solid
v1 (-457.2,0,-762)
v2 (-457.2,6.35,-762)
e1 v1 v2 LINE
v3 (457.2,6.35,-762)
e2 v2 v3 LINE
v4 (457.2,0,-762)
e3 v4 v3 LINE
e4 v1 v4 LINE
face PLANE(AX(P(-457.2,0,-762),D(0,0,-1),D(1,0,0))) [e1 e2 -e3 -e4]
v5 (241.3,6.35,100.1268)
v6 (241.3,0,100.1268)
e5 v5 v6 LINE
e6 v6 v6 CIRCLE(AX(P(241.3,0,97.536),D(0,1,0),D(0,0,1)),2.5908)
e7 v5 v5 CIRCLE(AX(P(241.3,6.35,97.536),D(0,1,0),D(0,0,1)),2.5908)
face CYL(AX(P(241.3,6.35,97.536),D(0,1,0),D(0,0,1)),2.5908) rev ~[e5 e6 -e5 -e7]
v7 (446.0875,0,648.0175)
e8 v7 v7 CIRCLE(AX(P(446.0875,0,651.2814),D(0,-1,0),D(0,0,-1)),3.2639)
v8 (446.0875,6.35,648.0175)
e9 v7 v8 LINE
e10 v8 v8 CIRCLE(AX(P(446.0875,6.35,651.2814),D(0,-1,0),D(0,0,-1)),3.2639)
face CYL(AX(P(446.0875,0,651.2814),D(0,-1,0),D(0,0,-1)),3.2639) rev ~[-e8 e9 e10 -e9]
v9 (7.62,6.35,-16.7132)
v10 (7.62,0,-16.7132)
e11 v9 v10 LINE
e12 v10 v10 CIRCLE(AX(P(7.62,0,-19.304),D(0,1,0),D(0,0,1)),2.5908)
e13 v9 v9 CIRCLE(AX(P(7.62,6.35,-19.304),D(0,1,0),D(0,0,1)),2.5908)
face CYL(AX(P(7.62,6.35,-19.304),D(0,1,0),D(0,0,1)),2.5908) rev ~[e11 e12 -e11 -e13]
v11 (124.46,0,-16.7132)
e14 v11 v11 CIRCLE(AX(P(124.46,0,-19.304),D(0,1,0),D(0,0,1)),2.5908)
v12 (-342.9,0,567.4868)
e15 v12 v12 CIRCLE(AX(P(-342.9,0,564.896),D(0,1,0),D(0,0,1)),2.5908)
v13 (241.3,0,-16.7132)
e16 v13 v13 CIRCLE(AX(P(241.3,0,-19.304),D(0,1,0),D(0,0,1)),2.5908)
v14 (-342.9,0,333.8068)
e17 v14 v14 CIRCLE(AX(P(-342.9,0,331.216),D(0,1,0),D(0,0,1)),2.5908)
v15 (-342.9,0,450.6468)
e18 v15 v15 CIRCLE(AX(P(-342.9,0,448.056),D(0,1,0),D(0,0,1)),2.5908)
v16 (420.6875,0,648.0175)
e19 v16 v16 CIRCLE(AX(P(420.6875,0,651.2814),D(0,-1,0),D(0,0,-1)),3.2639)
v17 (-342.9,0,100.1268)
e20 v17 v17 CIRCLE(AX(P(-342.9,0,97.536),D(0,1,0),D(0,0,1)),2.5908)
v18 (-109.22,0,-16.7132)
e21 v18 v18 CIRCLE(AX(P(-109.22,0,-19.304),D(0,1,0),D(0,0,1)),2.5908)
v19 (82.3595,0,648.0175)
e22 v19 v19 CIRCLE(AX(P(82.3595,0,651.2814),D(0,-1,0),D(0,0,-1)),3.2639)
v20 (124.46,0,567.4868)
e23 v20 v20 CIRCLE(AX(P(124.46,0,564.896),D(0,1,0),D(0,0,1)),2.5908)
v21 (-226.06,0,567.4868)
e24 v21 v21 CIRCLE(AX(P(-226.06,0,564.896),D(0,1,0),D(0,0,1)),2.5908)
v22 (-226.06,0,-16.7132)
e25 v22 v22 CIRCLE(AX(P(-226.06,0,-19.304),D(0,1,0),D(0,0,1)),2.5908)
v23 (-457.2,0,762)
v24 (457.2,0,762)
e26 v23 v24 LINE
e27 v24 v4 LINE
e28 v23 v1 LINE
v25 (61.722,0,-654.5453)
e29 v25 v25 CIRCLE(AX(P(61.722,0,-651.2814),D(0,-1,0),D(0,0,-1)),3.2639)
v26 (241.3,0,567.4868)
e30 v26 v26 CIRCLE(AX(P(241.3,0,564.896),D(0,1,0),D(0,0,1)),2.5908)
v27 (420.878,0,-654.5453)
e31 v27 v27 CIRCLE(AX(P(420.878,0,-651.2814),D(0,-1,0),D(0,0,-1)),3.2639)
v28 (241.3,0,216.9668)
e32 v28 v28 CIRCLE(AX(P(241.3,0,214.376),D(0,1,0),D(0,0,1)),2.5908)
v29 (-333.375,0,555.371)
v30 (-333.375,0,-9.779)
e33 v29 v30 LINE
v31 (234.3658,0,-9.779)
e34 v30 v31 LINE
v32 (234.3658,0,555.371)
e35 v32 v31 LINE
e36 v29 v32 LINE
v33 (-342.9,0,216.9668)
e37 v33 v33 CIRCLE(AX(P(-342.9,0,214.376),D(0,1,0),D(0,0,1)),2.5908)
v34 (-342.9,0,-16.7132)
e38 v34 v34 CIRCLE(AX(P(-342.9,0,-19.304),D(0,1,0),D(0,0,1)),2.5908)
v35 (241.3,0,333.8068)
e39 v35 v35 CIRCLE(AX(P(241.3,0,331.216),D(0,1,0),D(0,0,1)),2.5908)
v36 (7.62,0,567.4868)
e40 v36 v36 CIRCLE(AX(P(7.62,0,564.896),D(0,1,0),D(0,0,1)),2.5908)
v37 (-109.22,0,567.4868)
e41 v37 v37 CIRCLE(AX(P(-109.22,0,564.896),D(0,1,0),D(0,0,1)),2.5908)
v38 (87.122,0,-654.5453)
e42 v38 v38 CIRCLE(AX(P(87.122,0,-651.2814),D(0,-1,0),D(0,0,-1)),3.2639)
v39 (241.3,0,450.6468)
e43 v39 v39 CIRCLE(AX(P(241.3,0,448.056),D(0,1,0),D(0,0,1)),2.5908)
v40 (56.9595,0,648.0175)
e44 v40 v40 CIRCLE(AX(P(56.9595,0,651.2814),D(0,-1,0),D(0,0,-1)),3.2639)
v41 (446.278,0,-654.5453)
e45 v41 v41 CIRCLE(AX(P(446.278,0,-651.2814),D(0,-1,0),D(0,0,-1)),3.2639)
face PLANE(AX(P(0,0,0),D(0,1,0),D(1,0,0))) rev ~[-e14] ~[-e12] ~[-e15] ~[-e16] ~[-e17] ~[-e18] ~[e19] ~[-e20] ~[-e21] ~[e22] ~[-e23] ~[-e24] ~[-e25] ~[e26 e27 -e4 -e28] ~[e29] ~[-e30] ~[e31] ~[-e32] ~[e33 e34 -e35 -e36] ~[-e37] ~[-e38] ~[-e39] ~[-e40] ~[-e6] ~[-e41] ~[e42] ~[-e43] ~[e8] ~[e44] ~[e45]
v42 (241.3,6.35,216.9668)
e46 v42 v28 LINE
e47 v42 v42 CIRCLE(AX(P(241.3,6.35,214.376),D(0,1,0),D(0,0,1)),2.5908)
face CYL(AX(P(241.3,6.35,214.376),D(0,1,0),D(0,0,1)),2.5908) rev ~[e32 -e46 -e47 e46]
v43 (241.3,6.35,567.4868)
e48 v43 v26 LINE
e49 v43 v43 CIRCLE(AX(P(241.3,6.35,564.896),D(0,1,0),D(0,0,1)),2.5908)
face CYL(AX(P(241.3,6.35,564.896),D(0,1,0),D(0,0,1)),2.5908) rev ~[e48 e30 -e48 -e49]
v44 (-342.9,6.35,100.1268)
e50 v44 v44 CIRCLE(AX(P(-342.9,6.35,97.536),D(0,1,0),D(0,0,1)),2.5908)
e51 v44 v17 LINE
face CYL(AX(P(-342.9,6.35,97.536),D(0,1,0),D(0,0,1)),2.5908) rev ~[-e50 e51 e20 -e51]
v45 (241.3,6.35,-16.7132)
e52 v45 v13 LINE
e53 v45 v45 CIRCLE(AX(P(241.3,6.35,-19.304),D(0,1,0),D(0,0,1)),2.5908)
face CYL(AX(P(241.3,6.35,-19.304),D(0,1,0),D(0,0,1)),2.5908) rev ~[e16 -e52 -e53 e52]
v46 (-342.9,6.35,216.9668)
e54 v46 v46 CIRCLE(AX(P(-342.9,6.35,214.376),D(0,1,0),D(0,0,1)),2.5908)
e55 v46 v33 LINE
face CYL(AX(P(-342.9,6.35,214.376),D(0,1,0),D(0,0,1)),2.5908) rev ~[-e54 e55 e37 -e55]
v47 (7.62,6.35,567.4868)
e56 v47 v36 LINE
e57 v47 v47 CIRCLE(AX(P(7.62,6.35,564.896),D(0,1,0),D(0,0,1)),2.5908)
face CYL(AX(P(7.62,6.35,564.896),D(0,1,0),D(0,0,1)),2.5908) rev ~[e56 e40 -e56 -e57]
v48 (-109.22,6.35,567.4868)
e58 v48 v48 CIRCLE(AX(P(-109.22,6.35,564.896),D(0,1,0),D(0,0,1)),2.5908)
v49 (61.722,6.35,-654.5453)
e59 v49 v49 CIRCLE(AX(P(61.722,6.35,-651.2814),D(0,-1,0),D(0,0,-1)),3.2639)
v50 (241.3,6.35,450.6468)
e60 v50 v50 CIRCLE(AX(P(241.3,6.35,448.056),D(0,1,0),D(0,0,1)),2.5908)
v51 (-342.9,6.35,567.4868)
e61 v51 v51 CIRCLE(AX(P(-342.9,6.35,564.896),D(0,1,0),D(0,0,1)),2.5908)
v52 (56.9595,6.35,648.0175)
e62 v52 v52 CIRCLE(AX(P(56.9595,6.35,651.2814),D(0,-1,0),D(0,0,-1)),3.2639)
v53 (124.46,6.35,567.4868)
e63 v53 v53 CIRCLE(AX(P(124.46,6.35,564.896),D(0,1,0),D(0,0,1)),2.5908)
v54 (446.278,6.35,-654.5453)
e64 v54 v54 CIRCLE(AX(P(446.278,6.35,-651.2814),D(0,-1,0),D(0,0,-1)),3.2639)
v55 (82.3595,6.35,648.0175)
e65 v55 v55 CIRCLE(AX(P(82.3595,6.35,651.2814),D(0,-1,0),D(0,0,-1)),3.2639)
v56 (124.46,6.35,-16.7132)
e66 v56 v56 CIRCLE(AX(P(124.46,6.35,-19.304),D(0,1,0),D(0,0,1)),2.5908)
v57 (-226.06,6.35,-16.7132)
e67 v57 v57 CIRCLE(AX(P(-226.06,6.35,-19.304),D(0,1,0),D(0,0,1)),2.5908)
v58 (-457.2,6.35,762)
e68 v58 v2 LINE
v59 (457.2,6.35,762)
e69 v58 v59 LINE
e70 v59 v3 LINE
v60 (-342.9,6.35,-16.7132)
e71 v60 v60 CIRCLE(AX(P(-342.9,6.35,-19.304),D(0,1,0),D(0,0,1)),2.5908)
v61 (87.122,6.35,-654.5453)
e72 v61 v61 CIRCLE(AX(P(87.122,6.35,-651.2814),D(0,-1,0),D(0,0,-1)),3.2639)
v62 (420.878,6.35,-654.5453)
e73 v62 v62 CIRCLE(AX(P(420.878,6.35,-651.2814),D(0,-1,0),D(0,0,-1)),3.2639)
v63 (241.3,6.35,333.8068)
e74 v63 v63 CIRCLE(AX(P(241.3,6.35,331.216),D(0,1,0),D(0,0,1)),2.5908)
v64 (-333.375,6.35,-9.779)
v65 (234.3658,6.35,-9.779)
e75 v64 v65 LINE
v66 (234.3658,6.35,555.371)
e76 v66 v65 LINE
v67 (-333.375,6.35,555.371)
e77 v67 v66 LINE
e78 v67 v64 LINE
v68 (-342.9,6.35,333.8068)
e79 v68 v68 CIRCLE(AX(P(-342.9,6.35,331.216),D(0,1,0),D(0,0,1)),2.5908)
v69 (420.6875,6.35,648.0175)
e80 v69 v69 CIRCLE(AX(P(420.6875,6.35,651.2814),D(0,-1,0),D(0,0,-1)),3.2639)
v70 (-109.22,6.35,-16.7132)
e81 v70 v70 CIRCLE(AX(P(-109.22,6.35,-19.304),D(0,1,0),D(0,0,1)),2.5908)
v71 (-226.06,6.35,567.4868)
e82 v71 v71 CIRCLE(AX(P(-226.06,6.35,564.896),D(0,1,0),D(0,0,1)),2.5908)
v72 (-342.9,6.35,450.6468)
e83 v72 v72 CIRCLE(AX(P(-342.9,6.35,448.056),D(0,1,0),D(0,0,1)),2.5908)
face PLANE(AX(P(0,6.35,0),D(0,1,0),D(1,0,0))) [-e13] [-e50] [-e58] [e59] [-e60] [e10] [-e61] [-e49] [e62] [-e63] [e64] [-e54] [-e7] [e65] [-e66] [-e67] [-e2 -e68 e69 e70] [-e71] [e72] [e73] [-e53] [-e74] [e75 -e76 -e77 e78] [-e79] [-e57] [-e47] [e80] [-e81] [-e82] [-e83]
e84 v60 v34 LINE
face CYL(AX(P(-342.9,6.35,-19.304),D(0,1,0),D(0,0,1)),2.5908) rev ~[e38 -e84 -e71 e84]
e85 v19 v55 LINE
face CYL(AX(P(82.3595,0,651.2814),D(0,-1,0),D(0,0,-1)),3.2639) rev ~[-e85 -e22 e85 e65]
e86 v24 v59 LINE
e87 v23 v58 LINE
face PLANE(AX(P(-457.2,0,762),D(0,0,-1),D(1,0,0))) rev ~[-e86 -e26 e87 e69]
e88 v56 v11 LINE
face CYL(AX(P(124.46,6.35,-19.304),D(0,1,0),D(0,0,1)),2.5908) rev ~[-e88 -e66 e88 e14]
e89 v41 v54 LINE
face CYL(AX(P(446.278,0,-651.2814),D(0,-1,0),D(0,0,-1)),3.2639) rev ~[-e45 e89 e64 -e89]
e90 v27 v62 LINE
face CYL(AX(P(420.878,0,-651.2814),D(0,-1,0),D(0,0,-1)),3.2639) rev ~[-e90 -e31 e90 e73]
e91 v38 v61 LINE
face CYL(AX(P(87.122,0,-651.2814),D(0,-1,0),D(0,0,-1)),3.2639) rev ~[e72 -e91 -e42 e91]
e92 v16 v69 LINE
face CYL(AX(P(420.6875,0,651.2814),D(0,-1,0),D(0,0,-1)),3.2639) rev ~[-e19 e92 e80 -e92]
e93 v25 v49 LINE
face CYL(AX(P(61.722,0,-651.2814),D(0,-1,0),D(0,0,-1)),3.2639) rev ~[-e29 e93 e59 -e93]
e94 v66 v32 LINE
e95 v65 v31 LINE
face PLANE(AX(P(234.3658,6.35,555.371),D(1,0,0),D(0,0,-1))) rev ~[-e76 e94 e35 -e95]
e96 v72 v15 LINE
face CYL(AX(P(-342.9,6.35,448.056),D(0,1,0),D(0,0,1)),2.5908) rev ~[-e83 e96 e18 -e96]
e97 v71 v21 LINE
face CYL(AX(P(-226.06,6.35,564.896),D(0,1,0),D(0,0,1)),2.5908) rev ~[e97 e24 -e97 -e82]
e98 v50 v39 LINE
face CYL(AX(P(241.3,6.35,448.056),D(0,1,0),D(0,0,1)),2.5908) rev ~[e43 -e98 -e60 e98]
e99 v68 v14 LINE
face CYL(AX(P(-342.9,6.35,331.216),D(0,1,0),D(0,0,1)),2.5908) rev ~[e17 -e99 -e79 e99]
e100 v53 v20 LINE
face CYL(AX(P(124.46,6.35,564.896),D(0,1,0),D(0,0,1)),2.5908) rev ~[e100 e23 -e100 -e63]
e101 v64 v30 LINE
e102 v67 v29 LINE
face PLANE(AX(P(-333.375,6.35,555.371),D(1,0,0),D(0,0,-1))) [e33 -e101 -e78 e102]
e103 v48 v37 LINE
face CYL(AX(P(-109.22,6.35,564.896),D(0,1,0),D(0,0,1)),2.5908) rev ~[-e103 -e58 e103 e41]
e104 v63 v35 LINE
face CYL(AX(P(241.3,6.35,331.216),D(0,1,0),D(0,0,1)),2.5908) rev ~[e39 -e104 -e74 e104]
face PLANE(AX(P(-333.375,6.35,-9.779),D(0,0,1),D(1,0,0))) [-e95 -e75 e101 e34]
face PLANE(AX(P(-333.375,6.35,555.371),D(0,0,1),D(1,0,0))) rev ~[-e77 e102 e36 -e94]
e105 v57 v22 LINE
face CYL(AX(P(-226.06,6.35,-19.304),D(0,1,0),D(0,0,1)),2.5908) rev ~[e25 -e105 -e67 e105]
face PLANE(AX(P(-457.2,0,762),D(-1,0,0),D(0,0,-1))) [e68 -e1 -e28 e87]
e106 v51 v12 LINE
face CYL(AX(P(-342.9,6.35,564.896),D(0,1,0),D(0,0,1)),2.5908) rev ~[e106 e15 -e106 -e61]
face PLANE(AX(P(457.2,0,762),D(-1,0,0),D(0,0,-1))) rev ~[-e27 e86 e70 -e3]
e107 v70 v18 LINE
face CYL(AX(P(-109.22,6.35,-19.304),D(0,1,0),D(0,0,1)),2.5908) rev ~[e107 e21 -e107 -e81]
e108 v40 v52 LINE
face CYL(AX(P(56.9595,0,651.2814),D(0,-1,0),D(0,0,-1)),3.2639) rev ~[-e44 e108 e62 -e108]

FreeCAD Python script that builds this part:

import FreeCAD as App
import Part
import Sketcher
from FreeCAD import Vector
Q = App.Units.Quantity


def add_polygon(sketch, points):
    """Adds a closed chain of lines whose ends are joined by coincident constraints."""
    first, n = sketch.GeometryCount, len(points)
    for a, b in zip(points, points[1:] + points[:1]):
        sketch.addGeometry(Part.LineSegment(App.Vector(*a, 0), App.Vector(*b, 0)), False)
    for i in range(n):
        sketch.addConstraint(Sketcher.Constraint("Coincident", first + i, 2, first + (i + 1) % n, 1))

doc = App.newDocument("Part")
params = doc.addObject("Spreadsheet::Sheet", "Params")
for row, (alias, value) in enumerate([
    ("sketch1_width", "36 in"),
    ("sketch1_height", "60 in"),
    ("pad1_length", "0.25 in"),
    ("sketch2_diameter", "0.257 in"),
    ("sketch3_diameter", "0.204 in"),
    ("sketch3_height", "22.25 in"),
    ("sketch3_width", "22.352 in"),
], start=1):
    params.set(f"A{row}", alias)
    params.set(f"B{row}", "=" + value)
    params.setAlias(f"B{row}", alias)

body = doc.addObject("PartDesign::Body", "Body")

# Sketch on XZ plane
sketch1 = body.newObject("Sketcher::SketchObject", "Sketch")
sketch1.AttachmentSupport = (doc.getObject("XZ_Plane"), [""])
sketch1.MapMode = "FlatFace"
add_polygon(sketch1, [(-457, -762), (-457, 762), (457, 762), (457, -762)])  # lines 0-3
sketch1.addConstraint([
    Sketcher.Constraint("Vertical", 0),
    Sketcher.Constraint("Horizontal", 1),
    Sketcher.Constraint("Vertical", 2),
    Sketcher.Constraint("Horizontal", 3),
    Sketcher.Constraint("Symmetric", 0, 2, 2, 2, -1, 1),
    Sketcher.Constraint("DistanceX", 1, 1, 1, 2, Q("36 in")),
    Sketcher.Constraint("DistanceY", 0, 1, 0, 2, Q("60 in")),
])
sketch1.setExpression("Constraints[9]", "Params.sketch1_width")
sketch1.setExpression("Constraints[10]", "Params.sketch1_height")
pad1 = body.newObject("PartDesign::Pad", "Pad")
pad1.Profile = sketch1
pad1.setExpression("Length", "Params.pad1_length")
pad1.Reversed = True

# Sketch on XZ plane
sketch2 = body.newObject("Sketcher::SketchObject", "Sketch001")
sketch2.AttachmentSupport = (doc.getObject("XZ_Plane"), [""])
sketch2.MapMode = "FlatFace"
sketch2.addGeometry([
    Part.Circle(Vector(57, 651.3, 0), Vector(0, 0, 1), 3.3),  # 0
    Part.Circle(Vector(82.4, 651.3, 0), Vector(0, 0, 1), 3.3),  # 1
    Part.Circle(Vector(446.1, 651.3, 0), Vector(0, 0, 1), 3.3),  # 2
    Part.Circle(Vector(420.7, 651.3, 0), Vector(0, 0, 1), 3.3),  # 3
    Part.Circle(Vector(61.7, -651.3, 0), Vector(0, 0, 1), 3.3),  # 4
    Part.Circle(Vector(87.1, -651.3, 0), Vector(0, 0, 1), 3.3),  # 5
    Part.Circle(Vector(420.9, -651.3, 0), Vector(0, 0, 1), 3.3),  # 6
    Part.Circle(Vector(446.3, -651.3, 0), Vector(0, 0, 1), 3.3),  # 7
], False)
sketch2.addConstraint([
    Sketcher.Constraint("Equal", 0, 1),
    Sketcher.Constraint("Equal", 1, 2),
    Sketcher.Constraint("Equal", 2, 3),
    Sketcher.Constraint("Equal", 3, 4),
    Sketcher.Constraint("Equal", 4, 5),
    Sketcher.Constraint("Equal", 5, 6),
    Sketcher.Constraint("Equal", 6, 7),
    Sketcher.Constraint("Horizontal", 0, 3, 1, 3),
    Sketcher.Constraint("Horizontal", 1, 3, 2, 3),
    Sketcher.Constraint("Horizontal", 2, 3, 3, 3),
    Sketcher.Constraint("Horizontal", 4, 3, 5, 3),
    Sketcher.Constraint("Horizontal", 5, 3, 6, 3),
    Sketcher.Constraint("Horizontal", 6, 3, 7, 3),
    Sketcher.Constraint("Diameter", 0, Q("0.257 in")),
    Sketcher.Constraint("DistanceX", 0, 3, 1, 3, Q("1 in")),
    Sketcher.Constraint("DistanceX", 3, 3, 2, 3, Q("1 in")),
    Sketcher.Constraint("DistanceX", 4, 3, 5, 3, Q("1 in")),
    Sketcher.Constraint("DistanceX", 6, 3, 7, 3, Q("1 in")),
    Sketcher.Constraint("DistanceX", -1, 1, 4, 3, Q("2.43 in")),
    Sketcher.Constraint("DistanceX", -1, 1, 6, 3, Q("16.57 in")),
    Sketcher.Constraint("DistanceX", 1, 3, 2, 3, Q("14.32 in")),
    Sketcher.Constraint("DistanceY", -1, 1, 0, 3, Q("25.641 in")),
    Sketcher.Constraint("DistanceX", -1, 1, 2, 3, Q("17.5625 in")),
    Sketcher.Constraint("DistanceY", 4, 3, -1, 1, Q("25.641 in")),
])
sketch2.setExpression("Constraints[13]", "Params.sketch2_diameter")
pocket1 = body.newObject("PartDesign::Pocket", "Pocket")
pocket1.Profile = sketch2
pocket1.Type = "ThroughAll"

# Sketch on XZ plane
sketch3 = body.newObject("Sketcher::SketchObject", "Sketch002")
sketch3.AttachmentSupport = (doc.getObject("XZ_Plane"), [""])
sketch3.MapMode = "FlatFace"
sketch3.AttachmentOffset = App.Placement(Vector(0, 0, -0.25 * 25.4), App.Rotation())
sketch3.addGeometry(Part.Circle(Vector(241.3, -19.3, 0), Vector(0, 0, 1), 2.6), False)  # 0
sketch3.addGeometry(Part.Circle(Vector(241.3, 97.5, 0), Vector(0, 0, 1), 2.6), False)  # 1
sketch3.addGeometry(Part.Circle(Vector(241.3, 214.4, 0), Vector(0, 0, 1), 2.6), False)  # 2
sketch3.addGeometry(Part.Circle(Vector(241.3, 331.2, 0), Vector(0, 0, 1), 2.6), False)  # 3
sketch3.addGeometry(Part.Circle(Vector(241.3, 448.1, 0), Vector(0, 0, 1), 2.6), False)  # 4
sketch3.addGeometry(Part.Circle(Vector(241.3, 564.9, 0), Vector(0, 0, 1), 2.6), False)  # 5
sketch3.addGeometry(Part.Circle(Vector(-342.9, 564.9, 0), Vector(0, 0, 1), 2.6), False)  # 6
sketch3.addGeometry(Part.Circle(Vector(-226.1, 564.9, 0), Vector(0, 0, 1), 2.6), False)  # 7
sketch3.addGeometry(Part.Circle(Vector(-109.2, 564.9, 0), Vector(0, 0, 1), 2.6), False)  # 8
sketch3.addGeometry(Part.Circle(Vector(7.6, 564.9, 0), Vector(0, 0, 1), 2.6), False)  # 9
sketch3.addGeometry(Part.Circle(Vector(124.5, 564.9, 0), Vector(0, 0, 1), 2.6), False)  # 10
sketch3.addGeometry(Part.Circle(Vector(-342.9, 448.1, 0), Vector(0, 0, 1), 2.6), False)  # 11
sketch3.addGeometry(Part.Circle(Vector(-342.9, 331.2, 0), Vector(0, 0, 1), 2.6), False)  # 12
sketch3.addGeometry(Part.Circle(Vector(-342.9, 214.4, 0), Vector(0, 0, 1), 2.6), False)  # 13
sketch3.addGeometry(Part.Circle(Vector(-342.9, 97.5, 0), Vector(0, 0, 1), 2.6), False)  # 14
sketch3.addGeometry(Part.Circle(Vector(124.5, -19.3, 0), Vector(0, 0, 1), 2.6), False)  # 15
sketch3.addGeometry(Part.Circle(Vector(7.6, -19.3, 0), Vector(0, 0, 1), 2.6), False)  # 16
sketch3.addGeometry(Part.Circle(Vector(-109.2, -19.3, 0), Vector(0, 0, 1), 2.6), False)  # 17
sketch3.addGeometry(Part.Circle(Vector(-226.1, -19.3, 0), Vector(0, 0, 1), 2.6), False)  # 18
sketch3.addGeometry(Part.Circle(Vector(-342.9, -19.3, 0), Vector(0, 0, 1), 2.6), False)  # 19
add_polygon(sketch3, [(-333.4, -9.8), (-333.4, 555.4), (234.4, 555.4), (234.4, -9.8)])  # lines 20-23
sketch3.addConstraint([
    Sketcher.Constraint("Vertical", 20),
    Sketcher.Constraint("Horizontal", 21),
    Sketcher.Constraint("Vertical", 22),
    Sketcher.Constraint("Horizontal", 23),
    Sketcher.Constraint("Equal", 0, 1),
    Sketcher.Constraint("Equal", 1, 2),
    Sketcher.Constraint("Equal", 2, 3),
    Sketcher.Constraint("Equal", 3, 4),
    Sketcher.Constraint("Equal", 4, 5),
    Sketcher.Constraint("Equal", 5, 6),
    Sketcher.Constraint("Equal", 6, 7),
    Sketcher.Constraint("Equal", 7, 8),
    Sketcher.Constraint("Equal", 8, 9),
    Sketcher.Constraint("Equal", 9, 10),
    Sketcher.Constraint("Equal", 10, 11),
    Sketcher.Constraint("Equal", 11, 12),
    Sketcher.Constraint("Equal", 12, 13),
    Sketcher.Constraint("Equal", 13, 14),
    Sketcher.Constraint("Equal", 14, 15),
    Sketcher.Constraint("Equal", 15, 16),
    Sketcher.Constraint("Equal", 16, 17),
    Sketcher.Constraint("Equal", 17, 18),
    Sketcher.Constraint("Equal", 18, 19),
    Sketcher.Constraint("Horizontal", 5, 3, 6, 3),
    Sketcher.Constraint("Horizontal", 6, 3, 7, 3),
    Sketcher.Constraint("Horizontal", 7, 3, 8, 3),
    Sketcher.Constraint("Horizontal", 8, 3, 9, 3),
    Sketcher.Constraint("Horizontal", 9, 3, 10, 3),
    Sketcher.Constraint("Horizontal", 4, 3, 11, 3),
    Sketcher.Constraint("Horizontal", 3, 3, 12, 3),
    Sketcher.Constraint("Horizontal", 2, 3, 13, 3),
    Sketcher.Constraint("Horizontal", 1, 3, 14, 3),
    Sketcher.Constraint("Horizontal", 0, 3, 15, 3),
    Sketcher.Constraint("Horizontal", 15, 3, 16, 3),
    Sketcher.Constraint("Horizontal", 16, 3, 17, 3),
    Sketcher.Constraint("Horizontal", 17, 3, 18, 3),
    Sketcher.Constraint("Horizontal", 18, 3, 19, 3),
    Sketcher.Constraint("Vertical", 0, 3, 1, 3),
    Sketcher.Constraint("Vertical", 1, 3, 2, 3),
    Sketcher.Constraint("Vertical", 2, 3, 3, 3),
    Sketcher.Constraint("Vertical", 3, 3, 4, 3),
    Sketcher.Constraint("Vertical", 4, 3, 5, 3),
    Sketcher.Constraint("Vertical", 6, 3, 11, 3),
    Sketcher.Constraint("Vertical", 11, 3, 12, 3),
    Sketcher.Constraint("Vertical", 12, 3, 13, 3),
    Sketcher.Constraint("Vertical", 13, 3, 14, 3),
    Sketcher.Constraint("Vertical", 10, 3, 15, 3),
    Sketcher.Constraint("Vertical", 9, 3, 16, 3),
    Sketcher.Constraint("Vertical", 8, 3, 17, 3),
    Sketcher.Constraint("Vertical", 7, 3, 18, 3),
    Sketcher.Constraint("Vertical", 14, 3, 19, 3),
    Sketcher.Constraint("Diameter", 0, Q("0.204 in")),
    Sketcher.Constraint("DistanceY", 0, 3, 5, 3, Q("23 in")),
    Sketcher.Constraint("DistanceX", 6, 3, 5, 3, Q("23 in")),
    Sketcher.Constraint("DistanceY", 20, 1, 20, 2, Q("22.25 in")),
    Sketcher.Constraint("DistanceX", -1, 1, 0, 3, Q("9.5 in")),
    Sketcher.Constraint("DistanceX", 7, 3, -1, 1, Q("8.9 in")),
    Sketcher.Constraint("DistanceX", 8, 3, -1, 1, Q("4.3 in")),
    Sketcher.Constraint("DistanceX", -1, 1, 9, 3, Q("0.3 in")),
    Sketcher.Constraint("DistanceX", -1, 1, 10, 3, Q("4.9 in")),
    Sketcher.Constraint("DistanceY", 0, 3, 1, 3, Q("4.6 in")),
    Sketcher.Constraint("DistanceY", 1, 3, 2, 3, Q("4.6 in")),
    Sketcher.Constraint("DistanceY", 2, 3, 3, 3, Q("4.6 in")),
    Sketcher.Constraint("DistanceY", 3, 3, 4, 3, Q("4.6 in")),
    Sketcher.Constraint("DistanceX", 21, 1, 21, 2, Q("22.352 in")),
    Sketcher.Constraint("DistanceY", 0, 3, -1, 1, Q("0.76 in")),
    Sketcher.Constraint("DistanceX", 20, 2, -1, 1, Q("13.125 in")),
    Sketcher.Constraint("DistanceY", -1, 1, 20, 2, Q("21.865 in")),
])
sketch3.setExpression("Constraints[55]", "Params.sketch3_diameter")
sketch3.setExpression("Constraints[58]", "Params.sketch3_height")
sketch3.setExpression("Constraints[68]", "Params.sketch3_width")
pocket2 = body.newObject("PartDesign::Pocket", "Pocket001")
pocket2.Profile = sketch3
pocket2.Type = "ThroughAll"
pocket2.Reversed = True

doc.recompute()
